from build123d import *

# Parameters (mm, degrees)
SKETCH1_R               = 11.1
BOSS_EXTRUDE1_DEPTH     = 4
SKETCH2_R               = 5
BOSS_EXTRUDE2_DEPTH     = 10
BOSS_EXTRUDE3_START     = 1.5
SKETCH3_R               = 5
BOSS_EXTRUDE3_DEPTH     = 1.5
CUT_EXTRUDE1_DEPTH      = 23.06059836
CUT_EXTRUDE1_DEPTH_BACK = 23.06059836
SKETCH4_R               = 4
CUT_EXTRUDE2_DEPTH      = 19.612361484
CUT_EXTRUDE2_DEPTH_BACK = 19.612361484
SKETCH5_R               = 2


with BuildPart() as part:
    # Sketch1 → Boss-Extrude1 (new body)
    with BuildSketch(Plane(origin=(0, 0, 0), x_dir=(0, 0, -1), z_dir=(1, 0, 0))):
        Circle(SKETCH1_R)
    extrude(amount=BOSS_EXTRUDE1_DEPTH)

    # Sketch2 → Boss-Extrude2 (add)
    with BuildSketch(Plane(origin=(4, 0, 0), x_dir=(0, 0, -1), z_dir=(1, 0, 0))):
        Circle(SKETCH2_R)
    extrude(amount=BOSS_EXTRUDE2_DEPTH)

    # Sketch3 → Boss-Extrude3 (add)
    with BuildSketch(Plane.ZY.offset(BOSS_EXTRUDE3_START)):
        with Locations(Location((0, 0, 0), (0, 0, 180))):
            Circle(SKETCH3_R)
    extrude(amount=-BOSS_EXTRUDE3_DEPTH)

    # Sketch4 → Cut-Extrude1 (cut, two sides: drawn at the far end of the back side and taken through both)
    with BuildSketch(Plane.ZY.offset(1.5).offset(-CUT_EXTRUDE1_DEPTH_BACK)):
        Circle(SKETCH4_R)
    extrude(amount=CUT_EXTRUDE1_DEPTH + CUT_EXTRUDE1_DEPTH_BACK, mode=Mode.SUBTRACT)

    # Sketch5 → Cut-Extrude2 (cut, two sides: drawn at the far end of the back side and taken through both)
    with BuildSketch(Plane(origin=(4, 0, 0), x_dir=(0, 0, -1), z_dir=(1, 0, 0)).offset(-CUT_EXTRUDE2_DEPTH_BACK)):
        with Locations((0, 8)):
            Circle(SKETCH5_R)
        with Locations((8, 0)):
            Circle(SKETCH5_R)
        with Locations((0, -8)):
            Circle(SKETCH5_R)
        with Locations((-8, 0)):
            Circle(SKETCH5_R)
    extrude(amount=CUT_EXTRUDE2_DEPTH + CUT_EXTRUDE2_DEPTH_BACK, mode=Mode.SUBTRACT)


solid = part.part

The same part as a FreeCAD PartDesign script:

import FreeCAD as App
import Part
import Sketcher

doc = App.newDocument("Part")
body = doc.addObject("PartDesign::Body", "Body")

sketch1 = doc.addObject("Sketcher::SketchObject", "Sketch")
body.addObject(sketch1)
sketch1.AttachmentSupport = (doc.YZ_Plane, [""])
sketch1.MapMode = "FlatFace"
sketch1.addGeometry(Part.Circle(App.Vector(0, 0, 0), App.Vector(0, 0, 1), 11.1), False)
sketch1.addConstraint([
    Sketcher.Constraint("Coincident", 0, 3, -1, 1),
    Sketcher.Constraint("Diameter", 0, 22.2),
])
pad1 = doc.addObject("PartDesign::Pad", "Pad")
body.addObject(pad1)
pad1.Profile = sketch1
pad1.Length = 4

sketch2 = doc.addObject("Sketcher::SketchObject", "Sketch001")
body.addObject(sketch2)
sketch2.AttachmentSupport = (doc.YZ_Plane, [""])
sketch2.MapMode = "FlatFace"
sketch2.AttachmentOffset = App.Placement(App.Vector(0, 0, 4), App.Rotation())
sketch2.addGeometry(Part.Circle(App.Vector(0, 0, 0), App.Vector(0, 0, 1), 5), False)
sketch2.addConstraint([
    Sketcher.Constraint("Coincident", 0, 3, -1, 1),
    Sketcher.Constraint("Diameter", 0, 10.0),
])
pad2 = doc.addObject("PartDesign::Pad", "Pad001")
body.addObject(pad2)
pad2.Profile = sketch2
pad2.Length = 10

sketch3 = doc.addObject("Sketcher::SketchObject", "Sketch002")
body.addObject(sketch3)
sketch3.AttachmentSupport = (doc.YZ_Plane, [""])
sketch3.MapMode = "FlatFace"
sketch3.AttachmentOffset = App.Placement(App.Vector(0, 0, -1.5), App.Rotation())
sketch3.addGeometry(Part.Circle(App.Vector(0, 0, 0), App.Vector(0, 0, 1), 5), False)
sketch3.addConstraint([
    Sketcher.Constraint("Coincident", 0, 3, -1, 1),
    Sketcher.Constraint("Diameter", 0, 10.0),
])
pad3 = doc.addObject("PartDesign::Pad", "Pad002")
body.addObject(pad3)
pad3.Profile = sketch3
pad3.Length = 1.5

sketch4 = doc.addObject("Sketcher::SketchObject", "Sketch003")
body.addObject(sketch4)
sketch4.AttachmentSupport = (doc.YZ_Plane, [""])
sketch4.MapMode = "FlatFace"
sketch4.AttachmentOffset = App.Placement(App.Vector(0, 0, -1.5), App.Rotation())
sketch4.addGeometry(Part.Circle(App.Vector(0, 0, 0), App.Vector(0, 0, 1), 4), False)
sketch4.addConstraint([
    Sketcher.Constraint("Coincident", 0, 3, -1, 1),
    Sketcher.Constraint("Diameter", 0, 8.0),
])
pocket1 = doc.addObject("PartDesign::Pocket", "Pocket")
body.addObject(pocket1)
pocket1.Profile = sketch4
pocket1.Type = "ThroughAll"
pocket1.Midplane = True

sketch5 = doc.addObject("Sketcher::SketchObject", "Sketch004")
body.addObject(sketch5)
sketch5.AttachmentSupport = (doc.YZ_Plane, [""])
sketch5.MapMode = "FlatFace"
sketch5.AttachmentOffset = App.Placement(App.Vector(0, 0, 4), App.Rotation())
sketch5.addGeometry([
    Part.Circle(App.Vector(8, 0, 0), App.Vector(0, 0, 1), 2),
    Part.Circle(App.Vector(0, -8, 0), App.Vector(0, 0, 1), 2),
    Part.Circle(App.Vector(-8, 0, 0), App.Vector(0, 0, 1), 2),
    Part.Circle(App.Vector(0, 8, 0), App.Vector(0, 0, 1), 2),
], False)
sketch5.addConstraint([
    Sketcher.Constraint("Equal", 0, 1),
    Sketcher.Constraint("Equal", 1, 2),
    Sketcher.Constraint("Equal", 2, 3),
    Sketcher.Constraint("Symmetric", 0, 3, 2, 3, -1, 1),
    Sketcher.Constraint("Symmetric", 1, 3, 3, 3, -1, 1),
    Sketcher.Constraint("PointOnObject", 0, 3, -1),
    Sketcher.Constraint("PointOnObject", 1, 3, -2),
    Sketcher.Constraint("Diameter", 0, 4.0),
    Sketcher.Constraint("DistanceX", -1, 1, 0, 3, 8.0),
    Sketcher.Constraint("DistanceY", 1, 3, -1, 1, 8.0),
])
pocket2 = doc.addObject("PartDesign::Pocket", "Pocket001")
body.addObject(pocket2)
pocket2.Profile = sketch5
pocket2.Type = "ThroughAll"
pocket2.Midplane = True

doc.recompute()
